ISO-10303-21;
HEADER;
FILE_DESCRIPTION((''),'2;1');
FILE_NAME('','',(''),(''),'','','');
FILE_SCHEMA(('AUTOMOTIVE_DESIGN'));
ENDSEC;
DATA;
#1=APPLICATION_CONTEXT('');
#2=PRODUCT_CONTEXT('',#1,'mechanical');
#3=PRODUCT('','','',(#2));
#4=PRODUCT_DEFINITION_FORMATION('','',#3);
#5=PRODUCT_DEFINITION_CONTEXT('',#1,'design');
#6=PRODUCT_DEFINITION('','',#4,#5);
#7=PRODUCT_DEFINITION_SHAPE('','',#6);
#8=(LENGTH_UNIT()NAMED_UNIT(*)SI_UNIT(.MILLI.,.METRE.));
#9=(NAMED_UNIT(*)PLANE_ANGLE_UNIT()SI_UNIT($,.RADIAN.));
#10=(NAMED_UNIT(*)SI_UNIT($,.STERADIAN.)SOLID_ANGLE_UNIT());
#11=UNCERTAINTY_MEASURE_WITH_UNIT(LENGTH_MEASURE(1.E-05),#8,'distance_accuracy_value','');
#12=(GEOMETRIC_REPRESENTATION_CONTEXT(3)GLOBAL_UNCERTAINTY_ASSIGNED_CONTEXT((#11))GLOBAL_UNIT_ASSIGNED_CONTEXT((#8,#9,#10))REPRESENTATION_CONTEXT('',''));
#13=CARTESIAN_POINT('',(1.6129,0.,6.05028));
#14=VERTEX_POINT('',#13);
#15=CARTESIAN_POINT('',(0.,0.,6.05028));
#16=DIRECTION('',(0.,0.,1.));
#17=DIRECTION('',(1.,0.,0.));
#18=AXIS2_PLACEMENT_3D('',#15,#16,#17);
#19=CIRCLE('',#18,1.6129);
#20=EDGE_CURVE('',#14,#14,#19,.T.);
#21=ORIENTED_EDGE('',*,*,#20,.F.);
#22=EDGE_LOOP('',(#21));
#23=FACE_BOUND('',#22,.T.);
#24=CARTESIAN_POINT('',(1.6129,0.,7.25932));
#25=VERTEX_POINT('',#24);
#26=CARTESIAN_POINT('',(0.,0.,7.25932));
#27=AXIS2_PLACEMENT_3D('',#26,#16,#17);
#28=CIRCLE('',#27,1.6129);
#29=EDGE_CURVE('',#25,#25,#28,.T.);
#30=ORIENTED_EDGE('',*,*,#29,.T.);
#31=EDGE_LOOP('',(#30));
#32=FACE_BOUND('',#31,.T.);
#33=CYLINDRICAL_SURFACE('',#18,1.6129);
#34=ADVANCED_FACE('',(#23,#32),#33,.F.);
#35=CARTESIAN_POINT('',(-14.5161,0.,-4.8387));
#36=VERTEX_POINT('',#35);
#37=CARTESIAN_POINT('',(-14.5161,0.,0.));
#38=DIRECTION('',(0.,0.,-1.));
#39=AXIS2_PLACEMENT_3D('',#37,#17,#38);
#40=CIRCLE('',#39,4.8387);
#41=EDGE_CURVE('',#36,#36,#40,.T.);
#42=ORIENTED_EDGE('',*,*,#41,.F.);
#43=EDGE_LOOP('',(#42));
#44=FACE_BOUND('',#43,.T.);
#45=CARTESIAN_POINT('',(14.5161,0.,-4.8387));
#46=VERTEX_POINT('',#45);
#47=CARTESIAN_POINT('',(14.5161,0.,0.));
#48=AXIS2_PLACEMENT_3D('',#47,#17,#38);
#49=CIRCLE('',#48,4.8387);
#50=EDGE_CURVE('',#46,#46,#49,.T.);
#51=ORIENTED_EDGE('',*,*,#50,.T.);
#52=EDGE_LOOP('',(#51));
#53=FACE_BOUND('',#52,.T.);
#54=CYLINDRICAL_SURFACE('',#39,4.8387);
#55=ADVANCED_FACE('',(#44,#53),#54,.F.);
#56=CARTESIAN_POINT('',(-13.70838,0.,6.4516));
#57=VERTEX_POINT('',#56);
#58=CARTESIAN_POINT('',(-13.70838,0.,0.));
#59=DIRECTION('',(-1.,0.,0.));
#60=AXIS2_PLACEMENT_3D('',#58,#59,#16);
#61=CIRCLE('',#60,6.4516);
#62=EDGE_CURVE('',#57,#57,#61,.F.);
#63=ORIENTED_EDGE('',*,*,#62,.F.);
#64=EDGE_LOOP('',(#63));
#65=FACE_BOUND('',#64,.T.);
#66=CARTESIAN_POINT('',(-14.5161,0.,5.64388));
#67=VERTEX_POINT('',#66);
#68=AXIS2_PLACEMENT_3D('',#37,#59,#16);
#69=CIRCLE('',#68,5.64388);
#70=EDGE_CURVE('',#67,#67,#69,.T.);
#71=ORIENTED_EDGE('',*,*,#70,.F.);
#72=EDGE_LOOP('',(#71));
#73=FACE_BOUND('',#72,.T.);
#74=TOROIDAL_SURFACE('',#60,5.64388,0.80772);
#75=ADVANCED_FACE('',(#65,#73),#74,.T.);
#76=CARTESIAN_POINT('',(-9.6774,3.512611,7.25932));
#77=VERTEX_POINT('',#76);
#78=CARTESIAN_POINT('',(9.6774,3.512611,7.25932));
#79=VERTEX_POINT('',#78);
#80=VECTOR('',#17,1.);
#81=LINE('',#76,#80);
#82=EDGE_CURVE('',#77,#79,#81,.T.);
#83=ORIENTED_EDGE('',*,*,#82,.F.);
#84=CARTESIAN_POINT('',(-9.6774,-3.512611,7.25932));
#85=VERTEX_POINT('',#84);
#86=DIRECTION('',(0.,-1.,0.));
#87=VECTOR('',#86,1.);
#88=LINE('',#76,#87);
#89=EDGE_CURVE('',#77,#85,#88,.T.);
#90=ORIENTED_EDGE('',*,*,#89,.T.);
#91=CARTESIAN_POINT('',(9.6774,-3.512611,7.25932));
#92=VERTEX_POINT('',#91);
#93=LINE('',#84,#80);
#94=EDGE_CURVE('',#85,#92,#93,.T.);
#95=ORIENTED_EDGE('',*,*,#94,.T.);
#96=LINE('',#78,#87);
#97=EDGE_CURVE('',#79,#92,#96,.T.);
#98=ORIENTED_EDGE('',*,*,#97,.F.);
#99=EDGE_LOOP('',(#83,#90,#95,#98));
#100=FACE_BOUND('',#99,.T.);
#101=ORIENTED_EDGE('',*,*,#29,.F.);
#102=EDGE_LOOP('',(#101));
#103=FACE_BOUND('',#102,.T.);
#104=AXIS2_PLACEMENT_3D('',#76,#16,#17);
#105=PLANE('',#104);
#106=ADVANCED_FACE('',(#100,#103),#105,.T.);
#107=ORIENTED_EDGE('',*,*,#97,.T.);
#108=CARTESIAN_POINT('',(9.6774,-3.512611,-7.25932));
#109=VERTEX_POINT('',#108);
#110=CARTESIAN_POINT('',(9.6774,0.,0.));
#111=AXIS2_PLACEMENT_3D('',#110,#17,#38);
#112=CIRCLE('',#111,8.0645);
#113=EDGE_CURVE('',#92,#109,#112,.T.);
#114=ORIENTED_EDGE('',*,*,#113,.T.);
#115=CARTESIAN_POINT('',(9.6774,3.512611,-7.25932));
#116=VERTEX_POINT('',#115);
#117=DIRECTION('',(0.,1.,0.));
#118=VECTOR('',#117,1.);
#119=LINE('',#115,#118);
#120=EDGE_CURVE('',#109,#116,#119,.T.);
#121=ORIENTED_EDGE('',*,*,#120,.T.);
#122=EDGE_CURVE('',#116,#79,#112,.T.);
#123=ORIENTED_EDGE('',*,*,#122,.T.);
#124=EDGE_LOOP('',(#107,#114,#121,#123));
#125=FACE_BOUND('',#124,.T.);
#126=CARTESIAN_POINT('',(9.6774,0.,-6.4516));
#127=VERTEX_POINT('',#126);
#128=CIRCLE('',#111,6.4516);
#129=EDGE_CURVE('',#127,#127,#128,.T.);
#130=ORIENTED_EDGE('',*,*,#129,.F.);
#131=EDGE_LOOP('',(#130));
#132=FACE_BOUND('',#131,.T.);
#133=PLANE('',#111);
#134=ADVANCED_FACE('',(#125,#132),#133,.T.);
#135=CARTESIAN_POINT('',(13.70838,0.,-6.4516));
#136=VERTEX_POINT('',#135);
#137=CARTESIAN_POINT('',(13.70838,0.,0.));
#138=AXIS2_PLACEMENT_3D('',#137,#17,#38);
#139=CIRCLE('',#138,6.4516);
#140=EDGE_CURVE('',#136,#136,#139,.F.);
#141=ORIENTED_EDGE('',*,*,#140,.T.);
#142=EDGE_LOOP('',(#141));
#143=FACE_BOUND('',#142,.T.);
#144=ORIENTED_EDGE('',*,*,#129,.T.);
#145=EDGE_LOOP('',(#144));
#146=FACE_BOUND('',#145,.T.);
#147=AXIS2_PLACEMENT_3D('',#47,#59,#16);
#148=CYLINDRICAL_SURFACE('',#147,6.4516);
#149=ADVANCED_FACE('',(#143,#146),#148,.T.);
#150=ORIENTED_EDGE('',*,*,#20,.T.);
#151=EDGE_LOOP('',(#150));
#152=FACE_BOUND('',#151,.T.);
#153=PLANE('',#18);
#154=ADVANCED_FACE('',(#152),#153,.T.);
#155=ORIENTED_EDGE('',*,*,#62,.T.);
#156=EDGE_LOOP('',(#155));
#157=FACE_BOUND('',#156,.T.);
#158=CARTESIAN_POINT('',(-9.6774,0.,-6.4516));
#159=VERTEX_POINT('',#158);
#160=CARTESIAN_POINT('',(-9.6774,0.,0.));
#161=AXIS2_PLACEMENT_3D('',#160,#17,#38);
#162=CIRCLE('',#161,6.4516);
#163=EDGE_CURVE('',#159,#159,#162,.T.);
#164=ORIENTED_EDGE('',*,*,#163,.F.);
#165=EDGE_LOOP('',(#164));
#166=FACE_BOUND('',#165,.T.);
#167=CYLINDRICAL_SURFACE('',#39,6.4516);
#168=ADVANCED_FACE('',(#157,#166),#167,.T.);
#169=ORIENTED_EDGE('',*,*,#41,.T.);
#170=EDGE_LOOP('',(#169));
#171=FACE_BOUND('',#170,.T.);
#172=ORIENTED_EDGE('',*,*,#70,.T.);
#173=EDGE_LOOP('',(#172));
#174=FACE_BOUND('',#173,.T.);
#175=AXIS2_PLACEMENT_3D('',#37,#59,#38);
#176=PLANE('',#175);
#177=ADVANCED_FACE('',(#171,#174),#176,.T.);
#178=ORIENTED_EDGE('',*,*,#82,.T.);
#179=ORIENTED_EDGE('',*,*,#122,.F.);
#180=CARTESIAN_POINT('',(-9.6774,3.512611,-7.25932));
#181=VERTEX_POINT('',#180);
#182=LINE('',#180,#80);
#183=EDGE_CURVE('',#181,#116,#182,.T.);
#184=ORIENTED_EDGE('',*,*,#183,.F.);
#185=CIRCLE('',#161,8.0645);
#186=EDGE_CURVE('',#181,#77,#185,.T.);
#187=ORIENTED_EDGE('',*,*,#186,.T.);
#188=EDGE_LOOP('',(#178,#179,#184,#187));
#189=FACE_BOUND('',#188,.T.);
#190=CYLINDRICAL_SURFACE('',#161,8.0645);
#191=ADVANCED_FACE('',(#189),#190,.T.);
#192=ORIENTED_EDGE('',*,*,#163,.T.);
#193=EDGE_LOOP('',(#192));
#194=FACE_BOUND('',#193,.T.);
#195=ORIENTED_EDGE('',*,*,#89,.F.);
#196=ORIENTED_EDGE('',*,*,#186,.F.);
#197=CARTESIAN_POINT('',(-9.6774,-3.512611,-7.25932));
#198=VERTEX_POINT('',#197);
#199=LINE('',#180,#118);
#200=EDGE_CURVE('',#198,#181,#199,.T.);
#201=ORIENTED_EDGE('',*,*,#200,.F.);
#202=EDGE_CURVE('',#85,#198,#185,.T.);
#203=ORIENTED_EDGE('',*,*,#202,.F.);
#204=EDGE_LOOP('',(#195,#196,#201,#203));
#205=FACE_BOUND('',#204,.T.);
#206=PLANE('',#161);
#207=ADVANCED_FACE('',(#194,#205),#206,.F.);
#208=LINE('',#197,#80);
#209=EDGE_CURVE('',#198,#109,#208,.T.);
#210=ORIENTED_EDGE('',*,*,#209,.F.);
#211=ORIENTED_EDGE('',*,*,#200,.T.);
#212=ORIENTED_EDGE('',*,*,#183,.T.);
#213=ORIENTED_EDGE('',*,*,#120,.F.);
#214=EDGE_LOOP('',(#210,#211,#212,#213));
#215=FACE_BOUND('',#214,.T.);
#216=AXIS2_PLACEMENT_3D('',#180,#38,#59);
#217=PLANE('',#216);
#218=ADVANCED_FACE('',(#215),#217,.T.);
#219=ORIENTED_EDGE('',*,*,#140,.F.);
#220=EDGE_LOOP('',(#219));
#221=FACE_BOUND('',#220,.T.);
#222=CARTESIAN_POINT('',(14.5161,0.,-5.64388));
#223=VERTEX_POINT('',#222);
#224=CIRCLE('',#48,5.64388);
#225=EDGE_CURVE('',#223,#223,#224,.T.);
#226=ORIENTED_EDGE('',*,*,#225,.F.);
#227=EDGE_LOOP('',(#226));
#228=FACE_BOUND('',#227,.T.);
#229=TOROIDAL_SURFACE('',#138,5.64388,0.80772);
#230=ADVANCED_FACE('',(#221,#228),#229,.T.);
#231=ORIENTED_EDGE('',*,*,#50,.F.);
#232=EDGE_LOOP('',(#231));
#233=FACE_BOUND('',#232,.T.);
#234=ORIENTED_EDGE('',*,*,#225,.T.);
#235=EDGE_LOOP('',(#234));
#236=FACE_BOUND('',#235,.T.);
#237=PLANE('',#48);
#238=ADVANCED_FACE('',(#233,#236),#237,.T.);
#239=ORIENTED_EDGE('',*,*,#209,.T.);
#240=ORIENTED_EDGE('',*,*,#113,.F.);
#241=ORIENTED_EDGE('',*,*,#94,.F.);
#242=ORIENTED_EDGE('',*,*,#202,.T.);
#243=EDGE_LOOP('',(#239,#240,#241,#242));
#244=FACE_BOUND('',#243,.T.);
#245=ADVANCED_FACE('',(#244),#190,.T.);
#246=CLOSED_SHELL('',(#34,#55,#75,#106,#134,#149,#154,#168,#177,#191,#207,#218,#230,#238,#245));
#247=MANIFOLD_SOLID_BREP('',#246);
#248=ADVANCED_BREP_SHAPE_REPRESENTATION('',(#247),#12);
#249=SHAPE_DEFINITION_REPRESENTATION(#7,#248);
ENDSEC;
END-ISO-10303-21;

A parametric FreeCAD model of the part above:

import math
import FreeCAD as App
import Part
import Sketcher
Q = App.Units.Quantity


def edges_at(feature, points):
    """Names of the edges that pass closest to the given points."""
    edges = feature.Shape.Edges
    near = lambda p: min(range(len(edges)), key=lambda i: edges[i].distToShape(Part.Vertex(*p))[0])
    return sorted({f"Edge{near(p) + 1}" for p in points})

doc = App.newDocument("Part")
body = doc.addObject("PartDesign::Body", "Body")

# Sketch on YZ plane
sketch1 = body.newObject("Sketcher::SketchObject", "Sketch")
sketch1.AttachmentSupport = (doc.getObject("YZ_Plane"), [""])
sketch1.MapMode = "FlatFace"
sketch1.addGeometry([
    Part.LineSegment(App.Vector(3.512611, 7.25932, 0), App.Vector(-3.512611, 7.25932, 0)),
    Part.ArcOfCircle(Part.Circle(App.Vector(0, 0, 0), App.Vector(0, 0, 1), 8.0645), math.radians(115.821225), math.radians(244.178775)),
    Part.LineSegment(App.Vector(-3.512611, -7.25932, 0), App.Vector(3.512611, -7.25932, 0)),
    Part.ArcOfCircle(Part.Circle(App.Vector(0, 0, 0), App.Vector(0, 0, 1), 8.0645), math.radians(-64.178775), math.radians(64.178775)),
], False)
sketch1.addConstraint([
    Sketcher.Constraint("Coincident", 0, 2, 1, 1),
    Sketcher.Constraint("Coincident", 1, 2, 2, 1),
    Sketcher.Constraint("Coincident", 2, 2, 3, 1),
    Sketcher.Constraint("Coincident", 3, 2, 0, 1),
    Sketcher.Constraint("Horizontal", 0),
    Sketcher.Constraint("Horizontal", 2),
    Sketcher.Constraint("Coincident", 1, 3, -1, 1),
    Sketcher.Constraint("Coincident", 3, 3, -1, 1),
    Sketcher.Constraint("Equal", 1, 3),
    Sketcher.Constraint("Vertical", 0, 2, 1, 2),
    Sketcher.Constraint("Radius", 1, Q("0.3175 in")),
    Sketcher.Constraint("DistanceY", -1, 1, 0, 2, Q("0.2858 in")),
])
pad1 = body.newObject("PartDesign::Pad", "Pad")
pad1.Profile = sketch1
pad1.Type = "TwoLengths"
pad1.Length = Q("0.381 in")
pad1.Length2 = Q("0.381 in")

# Sketch on YZ plane
sketch2 = body.newObject("Sketcher::SketchObject", "Sketch001")
sketch2.AttachmentSupport = (doc.getObject("YZ_Plane"), [""])
sketch2.MapMode = "FlatFace"
sketch2.AttachmentOffset = App.Placement(App.Vector(0, 0, 0.381 * 25.4), App.Rotation())
sketch2.addGeometry(Part.Circle(App.Vector(0, 0, 0), App.Vector(0, 0, 1), 6.4516), False)
sketch2.addConstraint([
    Sketcher.Constraint("Coincident", 0, 3, -1, 1),
    Sketcher.Constraint("Diameter", 0, Q("0.508 in")),
])
pad2 = body.newObject("PartDesign::Pad", "Pad001")
pad2.Profile = sketch2
pad2.Length = Q("0.1905 in")
doc.recompute()

mirrored = body.newObject("PartDesign::Mirrored", "Mirrored")
mirrored.Originals = [pad2]
mirrored.MirrorPlane = (doc.getObject("YZ_Plane"), [""])
body.Tip = mirrored

# Sketch on YZ plane
sketch3 = body.newObject("Sketcher::SketchObject", "Sketch002")
sketch3.AttachmentSupport = (doc.getObject("YZ_Plane"), [""])
sketch3.MapMode = "FlatFace"
sketch3.AttachmentOffset = App.Placement(App.Vector(0, 0, 0.5715 * 25.4), App.Rotation())
sketch3.addGeometry(Part.Circle(App.Vector(0, 0, 0), App.Vector(0, 0, 1), 4.8387), False)
sketch3.addConstraint([
    Sketcher.Constraint("Coincident", 0, 3, -1, 1),
    Sketcher.Constraint("Diameter", 0, Q("0.381 in")),
])
pocket1 = body.newObject("PartDesign::Pocket", "Pocket")
pocket1.Profile = sketch3
pocket1.Type = "ThroughAll"
doc.recompute()

fillet = body.newObject("PartDesign::Fillet", "Fillet")
fillet.Base = (pocket1, edges_at(pocket1, [(14.516, 0, 6.452), (-14.516, 0, 6.452)]))
fillet.Radius = Q("0.0318 in")

# Sketch on XY plane
sketch4 = body.newObject("Sketcher::SketchObject", "Sketch003")
sketch4.AttachmentSupport = (doc.getObject("XY_Plane"), [""])
sketch4.MapMode = "FlatFace"
sketch4.AttachmentOffset = App.Placement(App.Vector(0, 0, 0.2858 * 25.4), App.Rotation())
sketch4.addGeometry(Part.Circle(App.Vector(0, 0, 0), App.Vector(0, 0, 1), 1.6129), False)
sketch4.addConstraint([
    Sketcher.Constraint("Coincident", 0, 3, -1, 1),
    Sketcher.Constraint("Diameter", 0, Q("0.127 in")),
])
pocket2 = body.newObject("PartDesign::Pocket", "Pocket001")
pocket2.Profile = sketch4
pocket2.Length = Q("0.0476 in")

doc.recompute()
